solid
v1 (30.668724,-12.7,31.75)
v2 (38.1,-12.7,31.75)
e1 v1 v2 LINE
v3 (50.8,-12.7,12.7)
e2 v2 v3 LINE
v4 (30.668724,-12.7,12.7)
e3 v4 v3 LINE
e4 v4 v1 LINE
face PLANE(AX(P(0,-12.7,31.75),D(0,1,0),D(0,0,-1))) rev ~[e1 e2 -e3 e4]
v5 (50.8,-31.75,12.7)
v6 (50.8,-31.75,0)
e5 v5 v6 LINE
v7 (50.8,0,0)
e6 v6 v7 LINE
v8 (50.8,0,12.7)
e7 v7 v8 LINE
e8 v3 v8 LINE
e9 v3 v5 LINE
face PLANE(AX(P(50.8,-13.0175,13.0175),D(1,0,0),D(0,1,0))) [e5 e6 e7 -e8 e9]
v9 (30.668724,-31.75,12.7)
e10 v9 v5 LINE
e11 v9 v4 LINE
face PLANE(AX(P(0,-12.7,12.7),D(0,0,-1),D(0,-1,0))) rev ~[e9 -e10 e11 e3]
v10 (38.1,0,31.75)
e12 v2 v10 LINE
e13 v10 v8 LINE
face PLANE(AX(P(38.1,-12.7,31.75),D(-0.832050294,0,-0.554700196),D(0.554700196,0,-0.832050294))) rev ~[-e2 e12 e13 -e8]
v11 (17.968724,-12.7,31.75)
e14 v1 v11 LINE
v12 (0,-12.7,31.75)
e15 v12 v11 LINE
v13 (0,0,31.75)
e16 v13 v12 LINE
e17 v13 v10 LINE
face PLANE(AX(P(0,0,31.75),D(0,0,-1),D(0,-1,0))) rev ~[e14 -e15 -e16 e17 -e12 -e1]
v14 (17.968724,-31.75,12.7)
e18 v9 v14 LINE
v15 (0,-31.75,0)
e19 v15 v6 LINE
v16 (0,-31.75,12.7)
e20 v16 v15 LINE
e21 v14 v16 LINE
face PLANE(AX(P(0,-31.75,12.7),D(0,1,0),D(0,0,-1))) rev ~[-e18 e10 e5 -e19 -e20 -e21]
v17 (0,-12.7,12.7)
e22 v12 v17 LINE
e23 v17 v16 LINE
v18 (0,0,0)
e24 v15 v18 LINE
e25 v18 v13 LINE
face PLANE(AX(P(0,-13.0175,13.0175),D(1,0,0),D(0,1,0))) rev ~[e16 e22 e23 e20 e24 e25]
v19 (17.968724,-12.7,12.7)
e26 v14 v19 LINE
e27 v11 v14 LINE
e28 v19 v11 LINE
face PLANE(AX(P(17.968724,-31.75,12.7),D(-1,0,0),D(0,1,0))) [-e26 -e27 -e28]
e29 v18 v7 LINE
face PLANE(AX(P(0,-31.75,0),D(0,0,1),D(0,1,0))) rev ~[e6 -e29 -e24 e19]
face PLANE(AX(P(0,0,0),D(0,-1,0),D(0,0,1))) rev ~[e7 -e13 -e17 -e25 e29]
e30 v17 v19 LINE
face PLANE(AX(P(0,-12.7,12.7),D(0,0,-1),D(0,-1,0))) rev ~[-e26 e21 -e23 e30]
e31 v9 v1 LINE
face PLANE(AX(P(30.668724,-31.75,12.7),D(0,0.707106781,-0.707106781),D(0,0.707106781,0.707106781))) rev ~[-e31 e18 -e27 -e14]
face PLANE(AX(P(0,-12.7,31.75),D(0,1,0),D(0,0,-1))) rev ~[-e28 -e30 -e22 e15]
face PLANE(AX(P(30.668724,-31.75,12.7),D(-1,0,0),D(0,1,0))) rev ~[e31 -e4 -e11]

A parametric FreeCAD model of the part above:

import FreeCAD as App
import Part
import Sketcher
Q = App.Units.Quantity


def add_polygon(sketch, points):
    """Adds a closed chain of lines whose ends are joined by coincident constraints."""
    first, n = sketch.GeometryCount, len(points)
    for a, b in zip(points, points[1:] + points[:1]):
        sketch.addGeometry(Part.LineSegment(App.Vector(*a, 0), App.Vector(*b, 0)), False)
    for i in range(n):
        sketch.addConstraint(Sketcher.Constraint("Coincident", first + i, 2, first + (i + 1) % n, 1))

doc = App.newDocument("Part")
body = doc.addObject("PartDesign::Body", "Body")

# Sketch on YZ plane
sketch1 = body.newObject("Sketcher::SketchObject", "Sketch")
sketch1.AttachmentSupport = (doc.getObject("YZ_Plane"), [""])
sketch1.MapMode = "FlatFace"
add_polygon(sketch1, [(-32, 0), (0, 0), (0, 32), (-13, 32), (-13, 13), (-32, 13)])  # lines 0-5
sketch1.addConstraint([
    Sketcher.Constraint("Horizontal", 0),
    Sketcher.Constraint("Vertical", 1),
    Sketcher.Constraint("Horizontal", 2),
    Sketcher.Constraint("Vertical", 3),
    Sketcher.Constraint("Horizontal", 4),
    Sketcher.Constraint("Vertical", 5),
    Sketcher.Constraint("Coincident", 0, 2, -1, 1),
    Sketcher.Constraint("Equal", 0, 1),
    Sketcher.Constraint("Equal", 4, 3),
    Sketcher.Constraint("DistanceX", 2, 2, 2, 1, Q("0.5 in")),
    Sketcher.Constraint("DistanceX", 0, 1, 0, 2, Q("1.25 in")),
])
pad1 = body.newObject("PartDesign::Pad", "Pad")
pad1.Profile = sketch1
pad1.Length = Q("2 in")

# Sketch on XZ plane
sketch2 = body.newObject("Sketcher::SketchObject", "Sketch001")
sketch2.AttachmentSupport = (doc.getObject("XZ_Plane"), [""])
sketch2.MapMode = "FlatFace"
sketch2.AttachmentOffset = App.Placement(App.Vector(0, 0, 0.5 * 25.4), App.Rotation())
add_polygon(sketch2, [(38, 32), (51, 13), (51, 32)])  # lines 0-2
sketch2.addConstraint([
    Sketcher.Constraint("Vertical", 1),
    Sketcher.Constraint("Horizontal", 2),
    Sketcher.Constraint("DistanceX", 2, 2, 2, 1, Q("0.5 in")),
    Sketcher.Constraint("DistanceX", -1, 1, 0, 2, Q("2 in")),
    Sketcher.Constraint("DistanceY", 1, 1, 1, 2, Q("0.75 in")),
    Sketcher.Constraint("DistanceY", -1, 1, 0, 2, Q("0.5 in")),
])
pocket1 = body.newObject("PartDesign::Pocket", "Pocket")
pocket1.Profile = sketch2
pocket1.Length = Q("1.46 in")

# Sketch on XY plane
sketch3 = body.newObject("Sketcher::SketchObject", "Sketch002")
sketch3.AttachmentSupport = (doc.getObject("XY_Plane"), [""])
sketch3.MapMode = "FlatFace"
sketch3.AttachmentOffset = App.Placement(App.Vector(0, 0, 0.5 * 25.4), App.Rotation())
add_polygon(sketch3, [(18, -13), (18, -32), (31, -32), (31, -13)])  # lines 0-3
sketch3.addConstraint([
    Sketcher.Constraint("Vertical", 0),
    Sketcher.Constraint("Horizontal", 1),
    Sketcher.Constraint("Vertical", 2),
    Sketcher.Constraint("Horizontal", 3),
    Sketcher.Constraint("DistanceX", 1, 1, 1, 2, Q("0.5 in")),
    Sketcher.Constraint("DistanceY", 0, 2, 0, 1, Q("0.75 in")),
    Sketcher.Constraint("DistanceY", 2, 2, -1, 1, Q("0.5 in")),
    Sketcher.Constraint("DistanceX", -1, 1, 0, 2, Q("17.968724 mm")),
])
pad2 = body.newObject("PartDesign::Pad", "Pad001")
pad2.Profile = sketch3
pad2.Length = Q("0.75 in")

# Sketch on YZ plane
sketch4 = body.newObject("Sketcher::SketchObject", "Sketch003")
sketch4.AttachmentSupport = (doc.getObject("YZ_Plane"), [""])
sketch4.MapMode = "FlatFace"
sketch4.AttachmentOffset = App.Placement(App.Vector(0, 0, 30.668724), App.Rotation())
add_polygon(sketch4, [(-32, 32), (-32, 13), (-13, 32)])  # lines 0-2
sketch4.addConstraint([
    Sketcher.Constraint("Vertical", 0),
    Sketcher.Constraint("Horizontal", 2),
    Sketcher.Constraint("Equal", 2, 0),
    Sketcher.Constraint("DistanceX", 2, 2, 2, 1, Q("0.75 in")),
    Sketcher.Constraint("DistanceY", -1, 1, 0, 2, Q("0.5 in")),
    Sketcher.Constraint("DistanceX", 1, 2, -1, 1, Q("0.5 in")),
])
pocket2 = body.newObject("PartDesign::Pocket", "Pocket001")
pocket2.Profile = sketch4
pocket2.Length = Q("1 in")

doc.recompute()
